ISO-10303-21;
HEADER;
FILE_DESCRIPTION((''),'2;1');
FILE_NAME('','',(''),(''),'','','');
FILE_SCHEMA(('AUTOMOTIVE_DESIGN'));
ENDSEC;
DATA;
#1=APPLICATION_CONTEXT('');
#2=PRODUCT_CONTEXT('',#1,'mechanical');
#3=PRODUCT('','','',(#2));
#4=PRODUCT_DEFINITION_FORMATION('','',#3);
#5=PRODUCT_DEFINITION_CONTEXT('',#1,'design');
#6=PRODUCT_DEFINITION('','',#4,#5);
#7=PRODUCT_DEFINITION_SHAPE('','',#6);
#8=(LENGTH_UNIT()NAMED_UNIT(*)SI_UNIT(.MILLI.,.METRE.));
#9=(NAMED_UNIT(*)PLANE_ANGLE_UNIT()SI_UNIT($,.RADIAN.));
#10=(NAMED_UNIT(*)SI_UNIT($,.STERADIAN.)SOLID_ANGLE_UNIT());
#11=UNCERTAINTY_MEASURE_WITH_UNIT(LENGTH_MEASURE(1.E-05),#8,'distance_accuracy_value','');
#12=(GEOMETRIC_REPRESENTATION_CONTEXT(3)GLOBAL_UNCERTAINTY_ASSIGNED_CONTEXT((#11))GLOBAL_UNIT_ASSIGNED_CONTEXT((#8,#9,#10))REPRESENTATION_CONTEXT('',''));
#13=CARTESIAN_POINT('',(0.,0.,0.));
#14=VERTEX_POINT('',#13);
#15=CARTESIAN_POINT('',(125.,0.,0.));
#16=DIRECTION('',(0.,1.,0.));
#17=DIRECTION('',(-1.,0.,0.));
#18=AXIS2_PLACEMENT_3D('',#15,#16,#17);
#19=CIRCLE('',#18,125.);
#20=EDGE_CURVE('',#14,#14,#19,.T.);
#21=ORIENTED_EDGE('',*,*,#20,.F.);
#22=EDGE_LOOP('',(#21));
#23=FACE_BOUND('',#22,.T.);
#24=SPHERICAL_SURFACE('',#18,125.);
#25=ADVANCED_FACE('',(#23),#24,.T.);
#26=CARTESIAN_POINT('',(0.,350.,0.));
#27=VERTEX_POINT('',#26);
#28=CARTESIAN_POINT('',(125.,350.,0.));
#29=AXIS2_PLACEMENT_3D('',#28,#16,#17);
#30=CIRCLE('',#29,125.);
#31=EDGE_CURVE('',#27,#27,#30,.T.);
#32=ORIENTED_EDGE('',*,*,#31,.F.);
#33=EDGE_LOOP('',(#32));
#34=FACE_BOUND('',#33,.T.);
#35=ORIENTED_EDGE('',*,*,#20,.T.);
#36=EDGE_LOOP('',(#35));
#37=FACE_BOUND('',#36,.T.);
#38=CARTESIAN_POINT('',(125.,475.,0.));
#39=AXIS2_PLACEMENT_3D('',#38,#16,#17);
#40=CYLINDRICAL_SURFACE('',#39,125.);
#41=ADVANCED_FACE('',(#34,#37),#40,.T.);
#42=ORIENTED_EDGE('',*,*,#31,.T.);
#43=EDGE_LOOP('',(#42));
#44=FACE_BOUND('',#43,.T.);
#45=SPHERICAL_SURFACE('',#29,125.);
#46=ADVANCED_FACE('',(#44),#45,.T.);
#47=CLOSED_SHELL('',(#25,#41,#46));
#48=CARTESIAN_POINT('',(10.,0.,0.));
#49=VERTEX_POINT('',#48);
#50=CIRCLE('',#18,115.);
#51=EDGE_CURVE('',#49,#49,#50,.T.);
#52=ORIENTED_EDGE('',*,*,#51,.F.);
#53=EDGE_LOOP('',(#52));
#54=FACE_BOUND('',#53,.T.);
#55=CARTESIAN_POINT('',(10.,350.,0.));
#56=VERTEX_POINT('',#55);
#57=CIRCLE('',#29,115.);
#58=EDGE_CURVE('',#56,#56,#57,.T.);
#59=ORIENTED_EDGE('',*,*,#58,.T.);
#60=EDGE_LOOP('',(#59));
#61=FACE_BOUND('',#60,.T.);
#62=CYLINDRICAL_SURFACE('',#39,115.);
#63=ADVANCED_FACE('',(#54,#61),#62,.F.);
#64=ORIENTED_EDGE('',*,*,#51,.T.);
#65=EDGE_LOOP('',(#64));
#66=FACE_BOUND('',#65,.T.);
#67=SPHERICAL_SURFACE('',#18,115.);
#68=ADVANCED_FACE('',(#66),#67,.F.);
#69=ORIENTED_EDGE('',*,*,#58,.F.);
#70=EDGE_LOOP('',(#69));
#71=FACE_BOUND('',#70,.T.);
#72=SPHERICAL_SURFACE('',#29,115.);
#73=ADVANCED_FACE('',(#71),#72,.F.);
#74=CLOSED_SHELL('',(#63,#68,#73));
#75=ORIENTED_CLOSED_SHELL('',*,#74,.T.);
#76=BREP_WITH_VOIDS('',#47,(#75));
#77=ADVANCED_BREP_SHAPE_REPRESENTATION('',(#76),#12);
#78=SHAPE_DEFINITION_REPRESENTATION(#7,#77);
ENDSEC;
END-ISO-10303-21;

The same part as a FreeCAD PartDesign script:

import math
import FreeCAD as App
import Part
import Sketcher

V = App.Vector
Q = App.Units.Quantity

doc = App.newDocument("Part")
body = doc.addObject("PartDesign::Body", "Body")

sketch1 = doc.addObject("Sketcher::SketchObject", "Sketch")
body.addObject(sketch1)
sketch1.AttachmentSupport = (doc.XY_Plane, [""])
sketch1.MapMode = "FlatFace"
sketch1.addGeometry([
    Part.LineSegment(V(0, 350, 0), V(0, 0, 0)),
    Part.ArcOfCircle(Part.Circle(V(125, 0, 0), V(0, 0, 1), 125), math.radians(-180), math.radians(-90)),
    Part.LineSegment(V(125, -125, 0), V(125, -115, 0)),
    Part.ArcOfCircle(Part.Circle(V(125, 0, 0), V(0, 0, 1), 115), math.radians(-180), math.radians(-90)),
    Part.LineSegment(V(10, 0, 0), V(10, 350, 0)),
    Part.ArcOfCircle(Part.Circle(V(125, 350, 0), V(0, 0, 1), 115), math.radians(90), math.radians(180)),
    Part.LineSegment(V(125, 465, 0), V(125, 475, 0)),
    Part.ArcOfCircle(Part.Circle(V(125, 350, 0), V(0, 0, 1), 125), math.radians(90), math.radians(180)),
], False)
sketch1.addGeometry(Part.LineSegment(V(125, 475, 0), V(125, -125, 0)), True)
sketch1.addConstraint([
    Sketcher.Constraint("Tangent", 0, 2, 1, 1),
    Sketcher.Constraint("Coincident", 1, 2, 2, 1),
    Sketcher.Constraint("Coincident", 2, 2, 3, 2),
    Sketcher.Constraint("Tangent", 3, 1, 4, 1),
    Sketcher.Constraint("Tangent", 4, 2, 5, 2),
    Sketcher.Constraint("Coincident", 5, 1, 6, 1),
    Sketcher.Constraint("Coincident", 6, 2, 7, 1),
    Sketcher.Constraint("Tangent", 7, 2, 0, 1),
    Sketcher.Constraint("Vertical", 0),
    Sketcher.Constraint("Vertical", 2),
    Sketcher.Constraint("Vertical", 4),
    Sketcher.Constraint("Vertical", 6),
    Sketcher.Constraint("Vertical", 8),
    Sketcher.Constraint("Coincident", 0, 2, -1, 1),
    Sketcher.Constraint("Coincident", 3, 3, 1, 3),
    Sketcher.Constraint("Coincident", 7, 3, 5, 3),
    Sketcher.Constraint("Coincident", 8, 1, 6, 2),
    Sketcher.Constraint("Coincident", 8, 2, 1, 2),
    Sketcher.Constraint("Equal", 3, 5),
    Sketcher.Constraint("Vertical", 7, 3, 1, 2),
    Sketcher.Constraint("Radius", 1, Q("125 mm")),
    Sketcher.Constraint("Radius", 3, Q("115 mm")),
    Sketcher.Constraint("DistanceY", 0, 2, 0, 1, Q("350 mm")),
])
revolution = doc.addObject("PartDesign::Revolution", "Revolution")
body.addObject(revolution)
revolution.Profile = sketch1
revolution.ReferenceAxis = (sketch1, ["Axis0"])
revolution.Angle = 360

doc.recompute()
